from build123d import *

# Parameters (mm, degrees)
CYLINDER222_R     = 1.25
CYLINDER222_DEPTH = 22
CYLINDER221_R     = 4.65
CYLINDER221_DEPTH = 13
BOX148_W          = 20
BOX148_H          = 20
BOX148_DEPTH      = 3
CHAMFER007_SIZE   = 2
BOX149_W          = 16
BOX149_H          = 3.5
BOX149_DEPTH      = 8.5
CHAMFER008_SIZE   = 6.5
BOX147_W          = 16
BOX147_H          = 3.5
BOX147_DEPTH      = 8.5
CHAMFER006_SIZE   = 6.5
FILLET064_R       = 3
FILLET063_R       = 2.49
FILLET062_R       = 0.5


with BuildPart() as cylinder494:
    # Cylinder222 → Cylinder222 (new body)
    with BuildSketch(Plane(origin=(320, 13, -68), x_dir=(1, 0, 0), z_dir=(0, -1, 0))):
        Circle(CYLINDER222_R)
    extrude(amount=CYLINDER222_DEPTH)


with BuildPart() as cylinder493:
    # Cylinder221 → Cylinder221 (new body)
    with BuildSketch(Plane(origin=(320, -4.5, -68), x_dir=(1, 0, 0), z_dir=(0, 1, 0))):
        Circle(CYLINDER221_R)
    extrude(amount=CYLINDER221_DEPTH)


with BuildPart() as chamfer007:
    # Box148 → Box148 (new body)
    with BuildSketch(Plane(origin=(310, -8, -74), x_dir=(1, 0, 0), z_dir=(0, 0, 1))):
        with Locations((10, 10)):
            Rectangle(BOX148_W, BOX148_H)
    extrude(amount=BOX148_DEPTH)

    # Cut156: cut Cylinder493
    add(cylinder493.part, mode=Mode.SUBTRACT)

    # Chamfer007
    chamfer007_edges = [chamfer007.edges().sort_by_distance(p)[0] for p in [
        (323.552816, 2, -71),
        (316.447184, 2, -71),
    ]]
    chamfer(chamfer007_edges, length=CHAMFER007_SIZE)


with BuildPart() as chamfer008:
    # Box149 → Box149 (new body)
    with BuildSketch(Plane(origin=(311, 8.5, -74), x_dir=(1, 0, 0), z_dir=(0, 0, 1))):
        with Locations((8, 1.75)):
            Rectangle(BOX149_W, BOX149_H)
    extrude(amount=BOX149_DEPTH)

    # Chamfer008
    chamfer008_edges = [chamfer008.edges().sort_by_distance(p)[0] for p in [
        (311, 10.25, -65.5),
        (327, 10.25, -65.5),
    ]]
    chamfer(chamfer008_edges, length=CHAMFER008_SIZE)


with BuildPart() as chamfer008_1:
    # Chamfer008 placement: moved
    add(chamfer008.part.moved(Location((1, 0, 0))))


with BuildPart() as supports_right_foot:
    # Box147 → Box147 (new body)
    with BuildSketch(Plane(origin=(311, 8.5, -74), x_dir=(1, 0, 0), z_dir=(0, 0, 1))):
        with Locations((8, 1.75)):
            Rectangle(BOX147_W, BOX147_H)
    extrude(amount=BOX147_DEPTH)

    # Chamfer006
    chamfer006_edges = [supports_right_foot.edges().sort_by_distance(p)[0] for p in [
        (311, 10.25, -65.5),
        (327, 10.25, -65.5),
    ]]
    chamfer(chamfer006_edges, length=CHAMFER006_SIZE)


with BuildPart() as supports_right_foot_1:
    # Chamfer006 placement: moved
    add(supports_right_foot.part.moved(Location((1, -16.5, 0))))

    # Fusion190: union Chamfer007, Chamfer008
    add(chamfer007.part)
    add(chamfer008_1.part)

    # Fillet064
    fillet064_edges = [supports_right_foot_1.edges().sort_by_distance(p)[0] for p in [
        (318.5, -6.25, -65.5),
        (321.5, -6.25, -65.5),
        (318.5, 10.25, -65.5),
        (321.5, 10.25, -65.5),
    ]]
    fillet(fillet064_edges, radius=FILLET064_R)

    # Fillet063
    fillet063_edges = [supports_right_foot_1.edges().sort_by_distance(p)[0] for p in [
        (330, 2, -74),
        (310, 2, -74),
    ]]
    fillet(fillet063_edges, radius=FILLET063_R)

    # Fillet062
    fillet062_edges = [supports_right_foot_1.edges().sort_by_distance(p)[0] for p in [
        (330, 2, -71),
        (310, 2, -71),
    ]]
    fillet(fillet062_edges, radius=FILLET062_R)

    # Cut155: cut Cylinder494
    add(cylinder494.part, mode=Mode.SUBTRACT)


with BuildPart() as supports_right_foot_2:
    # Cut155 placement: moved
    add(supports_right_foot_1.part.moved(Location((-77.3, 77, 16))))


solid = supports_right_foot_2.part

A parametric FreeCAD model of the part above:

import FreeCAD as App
import Part
import Sketcher
from FreeCAD import Vector


def edges_at(feature, points):
    """Names of the edges that pass closest to the given points."""
    edges = feature.Shape.Edges
    near = lambda p: min(range(len(edges)), key=lambda i: edges[i].distToShape(Part.Vertex(*p))[0])
    return sorted({f"Edge{near(p) + 1}" for p in points})


def add_polygon(sketch, points):
    """Adds a closed chain of lines whose ends are joined by coincident constraints."""
    first, n = sketch.GeometryCount, len(points)
    for a, b in zip(points, points[1:] + points[:1]):
        sketch.addGeometry(Part.LineSegment(App.Vector(*a, 0), App.Vector(*b, 0)), False)
    for i in range(n):
        sketch.addConstraint(Sketcher.Constraint("Coincident", first + i, 2, first + (i + 1) % n, 1))

doc = App.newDocument("Part")
params = doc.addObject("Spreadsheet::Sheet", "Params")
for row, (alias, value) in enumerate([
    ("sketch1_diameter", "2.5 mm"),
    ("pad1_length", "22 mm"),
    ("sketch2_diameter", "9.3 mm"),
    ("pad2_length", "13 mm"),
    ("sketch3_width", "20 mm"),
    ("pad3_length", "3 mm"),
    ("chamfer_size", "2 mm"),
    ("sketch4_width", "16 mm"),
    ("sketch4_height", "3.5 mm"),
    ("pad4_length", "8.5 mm"),
    ("chamfer2_size", "6.5 mm"),
    ("sketch5_width", "16 mm"),
    ("sketch5_height", "3.5 mm"),
    ("pad5_length", "8.5 mm"),
    ("chamfer3_size", "6.5 mm"),
    ("fillet_radius", "3 mm"),
    ("fillet2_radius", "2.49 mm"),
    ("fillet3_radius", "0.5 mm"),
], start=1):
    params.set(f"A{row}", alias)
    params.set(f"B{row}", "=" + value)
    params.setAlias(f"B{row}", alias)

body = doc.addObject("PartDesign::Body", "Body")

# Sketch on XZ plane
sketch1 = doc.addObject("Sketcher::SketchObject", "Sketch")
body.addObject(sketch1)
sketch1.AttachmentSupport = (doc.XZ_Plane, [""])
sketch1.MapMode = "FlatFace"
sketch1.AttachmentOffset = App.Placement(Vector(0, 0, -13), App.Rotation())
sketch1.addGeometry(Part.Circle(Vector(320, -68, 0), Vector(0, 0, 1), 1.2), False)
sketch1.addConstraint([
    Sketcher.Constraint("Diameter", 0, 2.5),
    Sketcher.Constraint("DistanceX", -1, 1, 0, 3, 320.0),
    Sketcher.Constraint("DistanceY", 0, 3, -1, 1, 68.0),
])
sketch1.setExpression("Constraints[0]", "Params.sketch1_diameter")
pad1 = doc.addObject("PartDesign::Pad", "Pad")
body.addObject(pad1)
pad1.Profile = sketch1
pad1.setExpression("Length", "Params.pad1_length")
body2 = doc.addObject("PartDesign::Body", "Body001")

# Sketch on XZ plane
sketch2 = doc.addObject("Sketcher::SketchObject", "Sketch001")
body2.addObject(sketch2)
sketch2.AttachmentSupport = (doc.getObject("XZ_Plane001"), [""])
sketch2.MapMode = "FlatFace"
sketch2.AttachmentOffset = App.Placement(Vector(0, 0, 4.5), App.Rotation())
sketch2.addGeometry(Part.Circle(Vector(320, -68, 0), Vector(0, 0, 1), 4.7), False)
sketch2.addConstraint([
    Sketcher.Constraint("Diameter", 0, 9.3),
    Sketcher.Constraint("DistanceX", -1, 1, 0, 3, 320.0),
    Sketcher.Constraint("DistanceY", 0, 3, -1, 1, 68.0),
])
sketch2.setExpression("Constraints[0]", "Params.sketch2_diameter")
pad2 = doc.addObject("PartDesign::Pad", "Pad001")
body2.addObject(pad2)
pad2.Profile = sketch2
pad2.setExpression("Length", "Params.pad2_length")
pad2.Reversed = True
body3 = doc.addObject("PartDesign::Body", "Body002")

# Sketch on XY plane
sketch3 = doc.addObject("Sketcher::SketchObject", "Sketch002")
body3.addObject(sketch3)
sketch3.AttachmentSupport = (doc.getObject("XY_Plane002"), [""])
sketch3.MapMode = "FlatFace"
sketch3.AttachmentOffset = App.Placement(Vector(0, 0, -74), App.Rotation())
add_polygon(sketch3, [(310, 12), (310, -8), (330, -8), (330, 12)])  # lines 0-3
sketch3.addConstraint([
    Sketcher.Constraint("Vertical", 0),
    Sketcher.Constraint("Horizontal", 1),
    Sketcher.Constraint("Vertical", 2),
    Sketcher.Constraint("Horizontal", 3),
    Sketcher.Constraint("Equal", 3, 0),
    Sketcher.Constraint("DistanceX", 1, 1, 1, 2, 20.0),
    Sketcher.Constraint("DistanceX", -1, 1, 0, 2, 310.0),
    Sketcher.Constraint("DistanceY", 0, 2, -1, 1, 8.0),
])
sketch3.setExpression("Constraints[9]", "Params.sketch3_width")
pad3 = doc.addObject("PartDesign::Pad", "Pad002")
body3.addObject(pad3)
pad3.Profile = sketch3
pad3.setExpression("Length", "Params.pad3_length")
doc.recompute()

boolean = doc.addObject("PartDesign::Boolean", "Boolean")
body3.addObject(boolean)
boolean.Type = "Cut"
boolean.addObjects([body2])
doc.recompute()

chamfer = doc.addObject("PartDesign::Chamfer", "Chamfer")
body3.addObject(chamfer)
chamfer.Base = (boolean, edges_at(boolean, [(323.553, 2, -71), (316.447, 2, -71)]))
chamfer.setExpression("Size", "Params.chamfer_size")
body4 = doc.addObject("PartDesign::Body", "Body003")

# Sketch on XY plane
sketch4 = doc.addObject("Sketcher::SketchObject", "Sketch003")
body4.addObject(sketch4)
sketch4.AttachmentSupport = (doc.getObject("XY_Plane003"), [""])
sketch4.MapMode = "FlatFace"
sketch4.AttachmentOffset = App.Placement(Vector(0, 0, -74), App.Rotation())
add_polygon(sketch4, [(311, 12), (311, 8.5), (327, 8.5), (327, 12)])  # lines 0-3
sketch4.addConstraint([
    Sketcher.Constraint("Vertical", 0),
    Sketcher.Constraint("Horizontal", 1),
    Sketcher.Constraint("Vertical", 2),
    Sketcher.Constraint("Horizontal", 3),
    Sketcher.Constraint("DistanceX", 1, 1, 1, 2, 16.0),
    Sketcher.Constraint("DistanceY", 0, 2, 0, 1, 3.5),
    Sketcher.Constraint("DistanceX", -1, 1, 0, 2, 311.0),
    Sketcher.Constraint("DistanceY", -1, 1, 2, 2, 12.0),
])
sketch4.setExpression("Constraints[8]", "Params.sketch4_width")
sketch4.setExpression("Constraints[9]", "Params.sketch4_height")
pad4 = doc.addObject("PartDesign::Pad", "Pad003")
body4.addObject(pad4)
pad4.Profile = sketch4
pad4.setExpression("Length", "Params.pad4_length")
doc.recompute()

chamfer2 = doc.addObject("PartDesign::Chamfer", "Chamfer001")
body4.addObject(chamfer2)
chamfer2.Base = (pad4, edges_at(pad4, [(311, 10.25, -65.5), (327, 10.25, -65.5)]))
chamfer2.setExpression("Size", "Params.chamfer2_size")
body5 = doc.addObject("PartDesign::Body", "Body004")
doc.recompute()

body4.Placement = App.Placement(Vector(1, 0, 0), App.Rotation(Vector(0, 0, 1), 0))
boolean2 = doc.addObject("PartDesign::Boolean", "Boolean001")
body5.addObject(boolean2)
boolean2.Type = "Fuse"
boolean2.addObjects([body4])
body6 = doc.addObject("PartDesign::Body", "Body005")

# Sketch on XY plane
sketch5 = doc.addObject("Sketcher::SketchObject", "Sketch004")
body6.addObject(sketch5)
sketch5.AttachmentSupport = (doc.getObject("XY_Plane005"), [""])
sketch5.MapMode = "FlatFace"
sketch5.AttachmentOffset = App.Placement(Vector(0, 0, -74), App.Rotation())
add_polygon(sketch5, [(311, 12), (311, 8.5), (327, 8.5), (327, 12)])  # lines 0-3
sketch5.addConstraint([
    Sketcher.Constraint("Vertical", 0),
    Sketcher.Constraint("Horizontal", 1),
    Sketcher.Constraint("Vertical", 2),
    Sketcher.Constraint("Horizontal", 3),
    Sketcher.Constraint("DistanceX", 1, 1, 1, 2, 16.0),
    Sketcher.Constraint("DistanceY", 0, 2, 0, 1, 3.5),
    Sketcher.Constraint("DistanceX", -1, 1, 0, 2, 311.0),
    Sketcher.Constraint("DistanceY", -1, 1, 2, 2, 12.0),
])
sketch5.setExpression("Constraints[8]", "Params.sketch5_width")
sketch5.setExpression("Constraints[9]", "Params.sketch5_height")
pad5 = doc.addObject("PartDesign::Pad", "Pad004")
body6.addObject(pad5)
pad5.Profile = sketch5
pad5.setExpression("Length", "Params.pad5_length")
doc.recompute()

chamfer3 = doc.addObject("PartDesign::Chamfer", "Chamfer002")
body6.addObject(chamfer3)
chamfer3.Base = (pad5, edges_at(pad5, [(311, 10.25, -65.5), (327, 10.25, -65.5)]))
chamfer3.setExpression("Size", "Params.chamfer3_size")
body7 = doc.addObject("PartDesign::Body", "Body006")
doc.recompute()

body6.Placement = App.Placement(Vector(1, -16.5, 0), App.Rotation(Vector(0, 0, 1), 0))
boolean3 = doc.addObject("PartDesign::Boolean", "Boolean002")
body7.addObject(boolean3)
boolean3.Type = "Fuse"
boolean3.addObjects([body6])
doc.recompute()

boolean4 = doc.addObject("PartDesign::Boolean", "Boolean003")
body7.addObject(boolean4)
boolean4.Type = "Fuse"
boolean4.addObjects([body3])
doc.recompute()

boolean5 = doc.addObject("PartDesign::Boolean", "Boolean004")
body7.addObject(boolean5)
boolean5.Type = "Fuse"
boolean5.addObjects([body5])
doc.recompute()

fillet = doc.addObject("PartDesign::Fillet", "Fillet")
body7.addObject(fillet)
fillet.Base = (boolean5, edges_at(boolean5, [
    (318.5, -6.25, -65.5),
    (321.5, -6.25, -65.5),
    (318.5, 10.25, -65.5),
    (321.5, 10.25, -65.5),
]))
fillet.setExpression("Radius", "Params.fillet_radius")
doc.recompute()

fillet2 = doc.addObject("PartDesign::Fillet", "Fillet001")
body7.addObject(fillet2)
fillet2.Base = (fillet, edges_at(fillet, [(330, 2, -74), (310, 2, -74)]))
fillet2.setExpression("Radius", "Params.fillet2_radius")
doc.recompute()

fillet3 = doc.addObject("PartDesign::Fillet", "Fillet002")
body7.addObject(fillet3)
fillet3.Base = (fillet2, edges_at(fillet2, [(330, 2, -71), (310, 2, -71)]))
fillet3.setExpression("Radius", "Params.fillet3_radius")
doc.recompute()

boolean6 = doc.addObject("PartDesign::Boolean", "Boolean005")
body7.addObject(boolean6)
boolean6.Type = "Cut"
boolean6.addObjects([body])
body8 = doc.addObject("PartDesign::Body", "Body007")
doc.recompute()

body7.Placement = App.Placement(Vector(-77.3, 77, 16), App.Rotation(Vector(0, 0, 1), 0))
boolean7 = doc.addObject("PartDesign::Boolean", "Boolean006")
body8.addObject(boolean7)
boolean7.Type = "Fuse"
boolean7.addObjects([body7])

doc.recompute()
